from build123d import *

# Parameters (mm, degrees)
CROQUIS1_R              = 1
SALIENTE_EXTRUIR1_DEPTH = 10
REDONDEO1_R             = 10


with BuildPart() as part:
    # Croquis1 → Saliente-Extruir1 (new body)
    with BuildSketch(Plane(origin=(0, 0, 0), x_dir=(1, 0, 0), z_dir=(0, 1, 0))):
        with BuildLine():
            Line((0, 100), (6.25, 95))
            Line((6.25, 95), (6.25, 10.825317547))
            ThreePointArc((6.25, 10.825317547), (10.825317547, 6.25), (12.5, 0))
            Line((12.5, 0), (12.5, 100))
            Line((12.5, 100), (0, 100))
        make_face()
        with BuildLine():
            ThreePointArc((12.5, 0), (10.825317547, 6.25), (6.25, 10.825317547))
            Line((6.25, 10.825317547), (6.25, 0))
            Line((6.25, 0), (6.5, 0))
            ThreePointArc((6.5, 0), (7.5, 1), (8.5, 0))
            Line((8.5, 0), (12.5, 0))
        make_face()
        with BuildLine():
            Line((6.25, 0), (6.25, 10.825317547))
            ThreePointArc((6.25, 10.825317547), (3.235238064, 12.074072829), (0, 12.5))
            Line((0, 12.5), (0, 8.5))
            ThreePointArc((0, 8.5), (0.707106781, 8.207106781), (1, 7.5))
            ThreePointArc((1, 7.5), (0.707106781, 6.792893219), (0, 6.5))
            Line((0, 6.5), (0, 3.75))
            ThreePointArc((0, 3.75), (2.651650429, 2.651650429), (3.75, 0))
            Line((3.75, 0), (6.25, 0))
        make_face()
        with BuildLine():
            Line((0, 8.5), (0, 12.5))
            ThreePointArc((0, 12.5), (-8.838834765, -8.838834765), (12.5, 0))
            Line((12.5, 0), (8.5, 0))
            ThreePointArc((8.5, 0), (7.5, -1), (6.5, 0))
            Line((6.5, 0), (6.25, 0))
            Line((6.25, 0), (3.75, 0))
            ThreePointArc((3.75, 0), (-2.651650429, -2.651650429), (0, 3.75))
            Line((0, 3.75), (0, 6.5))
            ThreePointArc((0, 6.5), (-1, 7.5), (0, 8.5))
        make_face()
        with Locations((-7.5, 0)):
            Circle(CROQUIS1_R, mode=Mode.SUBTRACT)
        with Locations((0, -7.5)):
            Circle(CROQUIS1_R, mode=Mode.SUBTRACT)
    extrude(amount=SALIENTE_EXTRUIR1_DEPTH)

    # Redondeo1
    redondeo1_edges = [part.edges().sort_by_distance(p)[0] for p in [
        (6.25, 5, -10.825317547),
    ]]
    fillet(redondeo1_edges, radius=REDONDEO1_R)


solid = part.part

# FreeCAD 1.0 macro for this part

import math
import FreeCAD as App
import Part
import Sketcher

V = App.Vector
Q = App.Units.Quantity


def edges_at(feature, points):
    """Names of the edges that pass closest to the given points."""
    edges = feature.Shape.Edges
    near = lambda p: min(range(len(edges)), key=lambda i: edges[i].distToShape(Part.Vertex(*p))[0])
    return sorted({f"Edge{near(p) + 1}" for p in points})

doc = App.newDocument("Part")
body = doc.addObject("PartDesign::Body", "Body")

# Sketch on XZ plane
sketch1 = body.newObject("Sketcher::SketchObject", "Sketch")
sketch1.AttachmentSupport = (doc.getObject("XZ_Plane"), [""])
sketch1.MapMode = "FlatFace"
sketch1.addGeometry(Part.LineSegment(V(0, -100, 0), V(6.2, -95, 0)), False)
sketch1.addGeometry(Part.LineSegment(V(6.2, -95, 0), V(6.2, -10.8, 0)), False)
sketch1.addGeometry(Part.ArcOfCircle(Part.Circle(V(0, 0, 0), V(0, 0, 1), 12.5), math.radians(-90), math.radians(-60)), False)
sketch1.addGeometry(Part.ArcOfCircle(Part.Circle(V(0, 0, 0), V(0, 0, 1), 12.5), math.radians(0), math.radians(270)), False)
sketch1.addGeometry(Part.LineSegment(V(12.5, 0, 0), V(12.5, -100, 0)), False)
sketch1.addGeometry(Part.LineSegment(V(12.5, -100, 0), V(0, -100, 0)), False)
sketch1.addGeometry(Part.Circle(V(-7.5, 0, 0), V(0, 0, 1), 1), False)
sketch1.addGeometry(Part.Circle(V(0, 7.5, 0), V(0, 0, 1), 1), False)
sketch1.addGeometry(Part.Circle(V(7.5, 0, 0), V(0, 0, 1), 1), False)
sketch1.addGeometry(Part.ArcOfCircle(Part.Circle(V(0, 0, 0), V(0, 0, 1), 3.8), math.radians(-90), math.radians(0)), False)
sketch1.addGeometry(Part.ArcOfCircle(Part.Circle(V(0, 0, 0), V(0, 0, 1), 3.8), math.radians(0), math.radians(270)), False)
sketch1.addGeometry(Part.ArcOfCircle(Part.Circle(V(0, -7.5, 0), V(0, 0, 1), 1), math.radians(-90), math.radians(0)), False)
sketch1.addGeometry(Part.ArcOfCircle(Part.Circle(V(0, -7.5, 0), V(0, 0, 1), 1), math.radians(0), math.radians(90)), False)
sketch1.addGeometry(Part.ArcOfCircle(Part.Circle(V(0, -7.5, 0), V(0, 0, 1), 1), math.radians(90), math.radians(270)), False)
sketch1.addConstraint(Sketcher.Constraint("Coincident", 0, 2, 1, 1))
sketch1.addConstraint(Sketcher.Constraint("Coincident", 1, 2, 2, 2))
sketch1.addConstraint(Sketcher.Constraint("Tangent", 2, 1, 3, 2))
sketch1.addConstraint(Sketcher.Constraint("Tangent", 3, 1, 4, 1))
sketch1.addConstraint(Sketcher.Constraint("Coincident", 4, 2, 5, 1))
sketch1.addConstraint(Sketcher.Constraint("Coincident", 5, 2, 0, 1))
sketch1.addConstraint(Sketcher.Constraint("Tangent", 9, 1, 10, 2))
sketch1.addConstraint(Sketcher.Constraint("Coincident", 10, 1, 9, 2))
sketch1.addConstraint(Sketcher.Constraint("Tangent", 11, 2, 12, 1))
sketch1.addConstraint(Sketcher.Constraint("Tangent", 12, 2, 13, 1))
sketch1.addConstraint(Sketcher.Constraint("Tangent", 13, 2, 11, 1))
sketch1.addConstraint(Sketcher.Constraint("Vertical", 1))
sketch1.addConstraint(Sketcher.Constraint("Vertical", 4))
sketch1.addConstraint(Sketcher.Constraint("Horizontal", 5))
sketch1.addConstraint(Sketcher.Constraint("Coincident", 2, 3, -1, 1))
sketch1.addConstraint(Sketcher.Constraint("Coincident", 9, 3, -1, 1))
sketch1.addConstraint(Sketcher.Constraint("Equal", 2, 3))
sketch1.addConstraint(Sketcher.Constraint("Equal", 6, 7))
sketch1.addConstraint(Sketcher.Constraint("Equal", 7, 8))
sketch1.addConstraint(Sketcher.Constraint("Equal", 8, 11))
sketch1.addConstraint(Sketcher.Constraint("Symmetric", 6, 3, 8, 3, -1, 1))
sketch1.addConstraint(Sketcher.Constraint("Symmetric", 7, 3, 11, 3, -1, 1))
sketch1.addConstraint(Sketcher.Constraint("PointOnObject", 6, 3, -1))
sketch1.addConstraint(Sketcher.Constraint("PointOnObject", 7, 3, -2))
sketch1.addConstraint(Sketcher.Constraint("PointOnObject", 2, 1, -2))
sketch1.addConstraint(Sketcher.Constraint("PointOnObject", 5, 2, -2))
sketch1.addConstraint(Sketcher.Constraint("PointOnObject", 9, 1, -2))
sketch1.addConstraint(Sketcher.Constraint("PointOnObject", 10, 1, -1))
sketch1.addConstraint(Sketcher.Constraint("PointOnObject", 12, 2, -2))
sketch1.addConstraint(Sketcher.Constraint("PointOnObject", 13, 2, -2))
sketch1.addConstraint(Sketcher.Constraint("Horizontal", 13, 3, 11, 2))
sketch1.addConstraint(Sketcher.Constraint("Diameter", 6, Q("2 mm")))
sketch1.addConstraint(Sketcher.Constraint("Radius", 2, Q("12.5 mm")))
sketch1.addConstraint(Sketcher.Constraint("DistanceY", 4, 2, 4, 1, Q("100 mm")))
sketch1.addConstraint(Sketcher.Constraint("Radius", 9, Q("3.75 mm")))
sketch1.addConstraint(Sketcher.Constraint("DistanceY", 0, 2, -1, 1, Q("95 mm")))
sketch1.addConstraint(Sketcher.Constraint("DistanceX", 6, 3, 8, 3, Q("15 mm")))
sketch1.addConstraint(Sketcher.Constraint("DistanceY", 2, 1, 12, 3, Q("5 mm")))
sketch1.addConstraint(Sketcher.Constraint("DistanceX", -1, 1, 0, 2, Q("6.25 mm")))
pad1 = body.newObject("PartDesign::Pad", "Pad")
pad1.Profile = sketch1
pad1.Length = 10
pad1.Reversed = True
doc.recompute()

fillet = body.newObject("PartDesign::Fillet", "Fillet")
fillet.Base = (pad1, edges_at(pad1, [(6.25, 5, -10.825)]))
fillet.Radius = 10

doc.recompute()
